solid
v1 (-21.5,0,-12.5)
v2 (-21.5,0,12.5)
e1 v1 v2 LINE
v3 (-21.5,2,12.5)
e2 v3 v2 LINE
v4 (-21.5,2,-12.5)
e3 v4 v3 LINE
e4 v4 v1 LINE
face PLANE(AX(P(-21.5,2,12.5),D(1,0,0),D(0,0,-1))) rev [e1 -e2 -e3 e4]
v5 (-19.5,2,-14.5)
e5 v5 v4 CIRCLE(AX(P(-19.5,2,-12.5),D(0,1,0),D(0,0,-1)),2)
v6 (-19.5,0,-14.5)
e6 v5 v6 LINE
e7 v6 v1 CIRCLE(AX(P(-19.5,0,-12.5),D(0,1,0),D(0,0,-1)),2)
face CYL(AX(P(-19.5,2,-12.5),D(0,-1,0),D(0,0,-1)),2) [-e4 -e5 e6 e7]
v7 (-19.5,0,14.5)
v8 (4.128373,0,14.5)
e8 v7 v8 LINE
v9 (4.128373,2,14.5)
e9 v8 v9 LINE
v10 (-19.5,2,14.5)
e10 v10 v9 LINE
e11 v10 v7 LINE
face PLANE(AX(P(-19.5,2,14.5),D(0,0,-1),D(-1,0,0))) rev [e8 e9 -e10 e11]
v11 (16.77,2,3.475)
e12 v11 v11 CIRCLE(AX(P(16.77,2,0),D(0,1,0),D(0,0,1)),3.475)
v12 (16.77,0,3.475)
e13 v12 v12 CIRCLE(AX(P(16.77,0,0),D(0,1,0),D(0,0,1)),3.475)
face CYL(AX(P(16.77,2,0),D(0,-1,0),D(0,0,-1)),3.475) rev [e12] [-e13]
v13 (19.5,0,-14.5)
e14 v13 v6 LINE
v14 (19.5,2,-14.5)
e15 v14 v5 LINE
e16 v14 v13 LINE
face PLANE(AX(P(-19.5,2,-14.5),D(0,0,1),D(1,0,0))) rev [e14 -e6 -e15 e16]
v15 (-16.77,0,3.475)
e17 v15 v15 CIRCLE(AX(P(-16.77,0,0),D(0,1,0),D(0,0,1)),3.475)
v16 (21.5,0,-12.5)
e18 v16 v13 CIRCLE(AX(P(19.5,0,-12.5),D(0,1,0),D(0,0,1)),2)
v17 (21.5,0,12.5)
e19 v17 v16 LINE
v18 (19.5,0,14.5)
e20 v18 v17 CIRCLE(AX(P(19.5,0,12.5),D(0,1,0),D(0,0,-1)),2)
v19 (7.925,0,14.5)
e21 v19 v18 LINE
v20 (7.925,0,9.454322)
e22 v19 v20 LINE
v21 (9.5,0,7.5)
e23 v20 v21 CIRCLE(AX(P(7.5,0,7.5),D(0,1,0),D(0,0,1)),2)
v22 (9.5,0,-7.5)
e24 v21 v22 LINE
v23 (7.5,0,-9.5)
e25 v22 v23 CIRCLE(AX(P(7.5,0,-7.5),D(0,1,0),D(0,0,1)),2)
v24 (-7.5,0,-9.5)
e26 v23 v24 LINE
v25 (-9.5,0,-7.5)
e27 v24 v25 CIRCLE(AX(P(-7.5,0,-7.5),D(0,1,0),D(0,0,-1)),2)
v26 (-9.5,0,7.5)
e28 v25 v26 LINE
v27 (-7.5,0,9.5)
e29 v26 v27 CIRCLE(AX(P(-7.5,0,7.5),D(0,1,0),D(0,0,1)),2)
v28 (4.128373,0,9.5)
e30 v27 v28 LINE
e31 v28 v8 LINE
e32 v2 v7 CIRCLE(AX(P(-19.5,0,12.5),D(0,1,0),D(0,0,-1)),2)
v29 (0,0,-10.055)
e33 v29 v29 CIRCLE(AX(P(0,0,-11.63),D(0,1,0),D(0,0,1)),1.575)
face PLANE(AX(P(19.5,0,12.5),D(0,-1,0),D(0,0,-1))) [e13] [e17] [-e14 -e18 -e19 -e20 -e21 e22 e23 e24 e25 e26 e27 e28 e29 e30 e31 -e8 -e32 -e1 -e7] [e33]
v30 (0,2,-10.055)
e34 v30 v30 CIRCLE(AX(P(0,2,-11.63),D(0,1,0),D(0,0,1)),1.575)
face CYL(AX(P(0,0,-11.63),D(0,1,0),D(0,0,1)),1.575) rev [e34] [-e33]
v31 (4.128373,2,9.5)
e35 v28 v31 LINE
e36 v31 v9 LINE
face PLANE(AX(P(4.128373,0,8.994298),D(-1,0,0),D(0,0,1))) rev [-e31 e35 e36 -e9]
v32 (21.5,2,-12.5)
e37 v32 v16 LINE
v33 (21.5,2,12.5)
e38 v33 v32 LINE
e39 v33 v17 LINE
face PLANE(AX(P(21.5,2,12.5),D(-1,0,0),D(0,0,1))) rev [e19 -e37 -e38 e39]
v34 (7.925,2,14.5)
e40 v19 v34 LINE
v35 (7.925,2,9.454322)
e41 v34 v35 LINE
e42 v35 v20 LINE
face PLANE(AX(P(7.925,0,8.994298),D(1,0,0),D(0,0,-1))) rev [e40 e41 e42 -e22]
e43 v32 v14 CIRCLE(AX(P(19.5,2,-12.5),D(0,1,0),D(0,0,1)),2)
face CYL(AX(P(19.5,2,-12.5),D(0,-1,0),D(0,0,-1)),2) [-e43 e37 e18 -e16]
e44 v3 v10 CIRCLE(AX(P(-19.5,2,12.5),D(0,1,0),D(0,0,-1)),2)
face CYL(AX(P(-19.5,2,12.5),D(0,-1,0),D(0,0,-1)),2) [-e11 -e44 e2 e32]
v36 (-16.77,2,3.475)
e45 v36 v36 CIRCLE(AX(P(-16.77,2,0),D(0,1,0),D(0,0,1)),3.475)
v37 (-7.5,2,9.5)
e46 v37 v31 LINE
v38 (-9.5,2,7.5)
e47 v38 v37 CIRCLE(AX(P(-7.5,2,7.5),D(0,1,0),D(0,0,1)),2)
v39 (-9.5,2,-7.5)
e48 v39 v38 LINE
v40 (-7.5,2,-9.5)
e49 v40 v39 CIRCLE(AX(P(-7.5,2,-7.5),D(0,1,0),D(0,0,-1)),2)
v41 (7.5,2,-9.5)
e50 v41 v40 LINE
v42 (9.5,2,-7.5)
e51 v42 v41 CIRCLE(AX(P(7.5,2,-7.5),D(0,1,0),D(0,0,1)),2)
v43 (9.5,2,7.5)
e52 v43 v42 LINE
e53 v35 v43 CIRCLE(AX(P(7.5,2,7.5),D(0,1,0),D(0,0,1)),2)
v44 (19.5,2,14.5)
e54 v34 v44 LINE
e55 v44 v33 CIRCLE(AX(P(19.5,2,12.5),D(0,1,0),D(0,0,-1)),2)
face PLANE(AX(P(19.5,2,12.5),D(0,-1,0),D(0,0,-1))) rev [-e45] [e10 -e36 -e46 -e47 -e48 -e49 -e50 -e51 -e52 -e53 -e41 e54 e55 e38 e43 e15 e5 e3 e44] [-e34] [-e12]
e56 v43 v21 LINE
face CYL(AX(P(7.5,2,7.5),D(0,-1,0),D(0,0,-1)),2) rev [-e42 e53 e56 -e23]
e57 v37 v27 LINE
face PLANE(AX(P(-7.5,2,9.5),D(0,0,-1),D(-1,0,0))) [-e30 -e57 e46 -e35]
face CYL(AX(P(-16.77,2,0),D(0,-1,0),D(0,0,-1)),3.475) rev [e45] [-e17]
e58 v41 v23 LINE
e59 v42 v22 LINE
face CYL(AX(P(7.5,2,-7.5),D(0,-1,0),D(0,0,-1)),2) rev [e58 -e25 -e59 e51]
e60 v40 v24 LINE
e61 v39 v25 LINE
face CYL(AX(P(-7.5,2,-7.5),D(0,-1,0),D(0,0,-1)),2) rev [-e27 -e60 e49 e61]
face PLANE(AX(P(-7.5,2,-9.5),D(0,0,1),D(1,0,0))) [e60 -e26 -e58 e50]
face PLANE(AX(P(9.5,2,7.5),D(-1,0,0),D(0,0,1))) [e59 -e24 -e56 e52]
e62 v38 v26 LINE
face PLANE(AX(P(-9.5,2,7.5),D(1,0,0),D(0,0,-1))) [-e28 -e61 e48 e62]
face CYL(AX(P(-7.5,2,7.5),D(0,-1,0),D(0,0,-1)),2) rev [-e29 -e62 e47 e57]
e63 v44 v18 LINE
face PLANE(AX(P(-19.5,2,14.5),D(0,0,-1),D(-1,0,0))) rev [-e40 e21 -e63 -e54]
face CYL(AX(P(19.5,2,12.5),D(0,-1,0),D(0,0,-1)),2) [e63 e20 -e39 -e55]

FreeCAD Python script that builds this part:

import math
import FreeCAD as App
import Part
import Sketcher


def add_polygon(sketch, points):
    """Adds a closed chain of lines whose ends are joined by coincident constraints."""
    first, n = sketch.GeometryCount, len(points)
    for a, b in zip(points, points[1:] + points[:1]):
        sketch.addGeometry(Part.LineSegment(App.Vector(*a, 0), App.Vector(*b, 0)), False)
    for i in range(n):
        sketch.addConstraint(Sketcher.Constraint("Coincident", first + i, 2, first + (i + 1) % n, 1))

doc = App.newDocument("Part")
params = doc.addObject("Spreadsheet::Sheet", "Params")
for row, (alias, value) in enumerate([
    ("sketch1_radius", "2 mm"),
    ("sketch1_diameter", "6.95 mm"),
    ("sketch1_width", "39 mm"),
    ("sketch1_width2", "15 mm"),
    ("sketch1_height", "25 mm"),
    ("pad1_length", "2 mm"),
    ("sketch2_diameter", "3.15 mm"),
], start=1):
    params.set(f"A{row}", alias)
    params.set(f"B{row}", "=" + value)
    params.setAlias(f"B{row}", alias)

body = doc.addObject("PartDesign::Body", "Body")

# Sketch on XZ plane
sketch1 = body.newObject("Sketcher::SketchObject", "Sketch")
sketch1.AttachmentSupport = (doc.getObject("XZ_Plane"), [""])
sketch1.MapMode = "FlatFace"
sketch1.addGeometry([
    Part.LineSegment(App.Vector(-19.5, 14.5, 0), App.Vector(19.5, 14.5, 0)),  # 0
    Part.ArcOfCircle(Part.Circle(App.Vector(19.5, 12.5, 0), App.Vector(0, 0, 1), 2), math.radians(0), math.radians(90)),  # 1
    Part.LineSegment(App.Vector(21.5, 12.5, 0), App.Vector(21.5, -12.5, 0)),  # 2
    Part.ArcOfCircle(Part.Circle(App.Vector(19.5, -12.5, 0), App.Vector(0, 0, 1), 2), math.radians(-90), math.radians(0)),  # 3
    Part.LineSegment(App.Vector(19.5, -14.5, 0), App.Vector(-19.5, -14.5, 0)),  # 4
    Part.ArcOfCircle(Part.Circle(App.Vector(-19.5, -12.5, 0), App.Vector(0, 0, 1), 2), math.radians(-180), math.radians(-90)),  # 5
    Part.LineSegment(App.Vector(-21.5, -12.5, 0), App.Vector(-21.5, 12.5, 0)),  # 6
    Part.ArcOfCircle(Part.Circle(App.Vector(-19.5, 12.5, 0), App.Vector(0, 0, 1), 2), math.radians(90), math.radians(180)),  # 7
    Part.Circle(App.Vector(-16.77, 0, 0), App.Vector(0, 0, 1), 3.475),  # 8
    Part.LineSegment(App.Vector(7.5, 9.5, 0), App.Vector(-7.5, 9.5, 0)),  # 9
    Part.ArcOfCircle(Part.Circle(App.Vector(-7.5, 7.5, 0), App.Vector(0, 0, 1), 2), math.radians(90), math.radians(180)),  # 10
    Part.LineSegment(App.Vector(-9.5, 7.5, 0), App.Vector(-9.5, -7.5, 0)),  # 11
    Part.ArcOfCircle(Part.Circle(App.Vector(-7.5, -7.5, 0), App.Vector(0, 0, 1), 2), math.radians(-180), math.radians(-90)),  # 12
    Part.LineSegment(App.Vector(-7.5, -9.5, 0), App.Vector(7.5, -9.5, 0)),  # 13
    Part.ArcOfCircle(Part.Circle(App.Vector(7.5, -7.5, 0), App.Vector(0, 0, 1), 2), math.radians(-90), math.radians(0)),  # 14
    Part.LineSegment(App.Vector(9.5, -7.5, 0), App.Vector(9.5, 7.5, 0)),  # 15
    Part.ArcOfCircle(Part.Circle(App.Vector(7.5, 7.5, 0), App.Vector(0, 0, 1), 2), math.radians(0), math.radians(90)),  # 16
    Part.Circle(App.Vector(16.77, 0, 0), App.Vector(0, 0, 1), 3.475),  # 17
], False)
sketch1.addConstraint([
    Sketcher.Constraint("Tangent", 0, 2, 1, 2),
    Sketcher.Constraint("Tangent", 1, 1, 2, 1),
    Sketcher.Constraint("Tangent", 2, 2, 3, 2),
    Sketcher.Constraint("Tangent", 3, 1, 4, 1),
    Sketcher.Constraint("Tangent", 4, 2, 5, 2),
    Sketcher.Constraint("Tangent", 5, 1, 6, 1),
    Sketcher.Constraint("Tangent", 6, 2, 7, 2),
    Sketcher.Constraint("Tangent", 7, 1, 0, 1),
    Sketcher.Constraint("Tangent", 9, 2, 10, 1),
    Sketcher.Constraint("Tangent", 10, 2, 11, 1),
    Sketcher.Constraint("Tangent", 11, 2, 12, 1),
    Sketcher.Constraint("Tangent", 12, 2, 13, 1),
    Sketcher.Constraint("Tangent", 13, 2, 14, 1),
    Sketcher.Constraint("Tangent", 14, 2, 15, 1),
    Sketcher.Constraint("Tangent", 15, 2, 16, 1),
    Sketcher.Constraint("Tangent", 16, 2, 9, 1),
    Sketcher.Constraint("Horizontal", 0),
    Sketcher.Constraint("Vertical", 2),
    Sketcher.Constraint("Horizontal", 4),
    Sketcher.Constraint("Vertical", 6),
    Sketcher.Constraint("Horizontal", 9),
    Sketcher.Constraint("Vertical", 11),
    Sketcher.Constraint("Horizontal", 13),
    Sketcher.Constraint("Vertical", 15),
    Sketcher.Constraint("Equal", 1, 3),
    Sketcher.Constraint("Equal", 3, 5),
    Sketcher.Constraint("Equal", 5, 7),
    Sketcher.Constraint("Equal", 7, 10),
    Sketcher.Constraint("Equal", 10, 12),
    Sketcher.Constraint("Equal", 12, 14),
    Sketcher.Constraint("Equal", 14, 16),
    Sketcher.Constraint("Equal", 8, 17),
    Sketcher.Constraint("Symmetric", 1, 3, 5, 3, -1, 1),
    Sketcher.Constraint("Symmetric", 10, 3, 14, 3, -1, 1),
    Sketcher.Constraint("Symmetric", 8, 3, 17, 3, -1, 1),
    Sketcher.Constraint("PointOnObject", 8, 3, -1),
    Sketcher.Constraint("Equal", 13, 11),
    Sketcher.Constraint("Radius", 1, 2.0),
    Sketcher.Constraint("Diameter", 8, 6.95),
    Sketcher.Constraint("DistanceX", 0, 1, 0, 2, 39.0),
    Sketcher.Constraint("DistanceX", 9, 2, 9, 1, 15.0),
    Sketcher.Constraint("DistanceY", 2, 2, 2, 1, 25.0),
    Sketcher.Constraint("DistanceX", 8, 3, -1, 1, 16.77),
])
sketch1.setExpression("Constraints[37]", "Params.sketch1_radius")
sketch1.setExpression("Constraints[38]", "Params.sketch1_diameter")
sketch1.setExpression("Constraints[39]", "Params.sketch1_width")
sketch1.setExpression("Constraints[40]", "Params.sketch1_width2")
sketch1.setExpression("Constraints[41]", "Params.sketch1_height")
pad1 = body.newObject("PartDesign::Pad", "Pad")
pad1.Profile = sketch1
pad1.setExpression("Length", "Params.pad1_length")
pad1.Reversed = True

# Sketch on XZ plane
sketch2 = body.newObject("Sketcher::SketchObject", "Sketch001")
sketch2.AttachmentSupport = (doc.getObject("XZ_Plane"), [""])
sketch2.MapMode = "FlatFace"
sketch2.AttachmentOffset = App.Placement(App.Vector(0, 0, -2), App.Rotation())
sketch2.addGeometry(Part.Circle(App.Vector(0, -11.63, 0), App.Vector(0, 0, 1), 1.575), False)
sketch2.addConstraint([
    Sketcher.Constraint("PointOnObject", 0, 3, -2),
    Sketcher.Constraint("Diameter", 0, 3.15),
    Sketcher.Constraint("DistanceY", 0, 3, -1, 1, 11.63),
])
sketch2.setExpression("Constraints[1]", "Params.sketch2_diameter")
pocket1 = body.newObject("PartDesign::Pocket", "Pocket")
pocket1.Profile = sketch2
pocket1.Type = "ThroughAll"
pocket1.Reversed = True

# Sketch on XZ plane
sketch3 = body.newObject("Sketcher::SketchObject", "Sketch002")
sketch3.AttachmentSupport = (doc.getObject("XZ_Plane"), [""])
sketch3.MapMode = "FlatFace"
sketch3.AttachmentOffset = App.Placement(App.Vector(0, 0, -2), App.Rotation())
add_polygon(sketch3, [(4.128373, 8.994298), (4.128373, 14.5), (7.925, 14.5), (7.925, 8.994298)])  # lines 0-3
sketch3.addConstraint([
    Sketcher.Constraint("Vertical", 0),
    Sketcher.Constraint("Horizontal", 1),
    Sketcher.Constraint("Vertical", 2),
    Sketcher.Constraint("Horizontal", 3),
    Sketcher.Constraint("DistanceY", -1, 1, 0, 2, 14.5),
    Sketcher.Constraint("DistanceX", -1, 1, 1, 2, 7.925),
    Sketcher.Constraint("DistanceX", 1, 1, 1, 2, 3.796627),
    Sketcher.Constraint("DistanceY", 0, 1, 0, 2, 5.505702),
])
pocket2 = body.newObject("PartDesign::Pocket", "Pocket001")
pocket2.Profile = sketch3
pocket2.Type = "ThroughAll"
pocket2.Reversed = True

doc.recompute()
